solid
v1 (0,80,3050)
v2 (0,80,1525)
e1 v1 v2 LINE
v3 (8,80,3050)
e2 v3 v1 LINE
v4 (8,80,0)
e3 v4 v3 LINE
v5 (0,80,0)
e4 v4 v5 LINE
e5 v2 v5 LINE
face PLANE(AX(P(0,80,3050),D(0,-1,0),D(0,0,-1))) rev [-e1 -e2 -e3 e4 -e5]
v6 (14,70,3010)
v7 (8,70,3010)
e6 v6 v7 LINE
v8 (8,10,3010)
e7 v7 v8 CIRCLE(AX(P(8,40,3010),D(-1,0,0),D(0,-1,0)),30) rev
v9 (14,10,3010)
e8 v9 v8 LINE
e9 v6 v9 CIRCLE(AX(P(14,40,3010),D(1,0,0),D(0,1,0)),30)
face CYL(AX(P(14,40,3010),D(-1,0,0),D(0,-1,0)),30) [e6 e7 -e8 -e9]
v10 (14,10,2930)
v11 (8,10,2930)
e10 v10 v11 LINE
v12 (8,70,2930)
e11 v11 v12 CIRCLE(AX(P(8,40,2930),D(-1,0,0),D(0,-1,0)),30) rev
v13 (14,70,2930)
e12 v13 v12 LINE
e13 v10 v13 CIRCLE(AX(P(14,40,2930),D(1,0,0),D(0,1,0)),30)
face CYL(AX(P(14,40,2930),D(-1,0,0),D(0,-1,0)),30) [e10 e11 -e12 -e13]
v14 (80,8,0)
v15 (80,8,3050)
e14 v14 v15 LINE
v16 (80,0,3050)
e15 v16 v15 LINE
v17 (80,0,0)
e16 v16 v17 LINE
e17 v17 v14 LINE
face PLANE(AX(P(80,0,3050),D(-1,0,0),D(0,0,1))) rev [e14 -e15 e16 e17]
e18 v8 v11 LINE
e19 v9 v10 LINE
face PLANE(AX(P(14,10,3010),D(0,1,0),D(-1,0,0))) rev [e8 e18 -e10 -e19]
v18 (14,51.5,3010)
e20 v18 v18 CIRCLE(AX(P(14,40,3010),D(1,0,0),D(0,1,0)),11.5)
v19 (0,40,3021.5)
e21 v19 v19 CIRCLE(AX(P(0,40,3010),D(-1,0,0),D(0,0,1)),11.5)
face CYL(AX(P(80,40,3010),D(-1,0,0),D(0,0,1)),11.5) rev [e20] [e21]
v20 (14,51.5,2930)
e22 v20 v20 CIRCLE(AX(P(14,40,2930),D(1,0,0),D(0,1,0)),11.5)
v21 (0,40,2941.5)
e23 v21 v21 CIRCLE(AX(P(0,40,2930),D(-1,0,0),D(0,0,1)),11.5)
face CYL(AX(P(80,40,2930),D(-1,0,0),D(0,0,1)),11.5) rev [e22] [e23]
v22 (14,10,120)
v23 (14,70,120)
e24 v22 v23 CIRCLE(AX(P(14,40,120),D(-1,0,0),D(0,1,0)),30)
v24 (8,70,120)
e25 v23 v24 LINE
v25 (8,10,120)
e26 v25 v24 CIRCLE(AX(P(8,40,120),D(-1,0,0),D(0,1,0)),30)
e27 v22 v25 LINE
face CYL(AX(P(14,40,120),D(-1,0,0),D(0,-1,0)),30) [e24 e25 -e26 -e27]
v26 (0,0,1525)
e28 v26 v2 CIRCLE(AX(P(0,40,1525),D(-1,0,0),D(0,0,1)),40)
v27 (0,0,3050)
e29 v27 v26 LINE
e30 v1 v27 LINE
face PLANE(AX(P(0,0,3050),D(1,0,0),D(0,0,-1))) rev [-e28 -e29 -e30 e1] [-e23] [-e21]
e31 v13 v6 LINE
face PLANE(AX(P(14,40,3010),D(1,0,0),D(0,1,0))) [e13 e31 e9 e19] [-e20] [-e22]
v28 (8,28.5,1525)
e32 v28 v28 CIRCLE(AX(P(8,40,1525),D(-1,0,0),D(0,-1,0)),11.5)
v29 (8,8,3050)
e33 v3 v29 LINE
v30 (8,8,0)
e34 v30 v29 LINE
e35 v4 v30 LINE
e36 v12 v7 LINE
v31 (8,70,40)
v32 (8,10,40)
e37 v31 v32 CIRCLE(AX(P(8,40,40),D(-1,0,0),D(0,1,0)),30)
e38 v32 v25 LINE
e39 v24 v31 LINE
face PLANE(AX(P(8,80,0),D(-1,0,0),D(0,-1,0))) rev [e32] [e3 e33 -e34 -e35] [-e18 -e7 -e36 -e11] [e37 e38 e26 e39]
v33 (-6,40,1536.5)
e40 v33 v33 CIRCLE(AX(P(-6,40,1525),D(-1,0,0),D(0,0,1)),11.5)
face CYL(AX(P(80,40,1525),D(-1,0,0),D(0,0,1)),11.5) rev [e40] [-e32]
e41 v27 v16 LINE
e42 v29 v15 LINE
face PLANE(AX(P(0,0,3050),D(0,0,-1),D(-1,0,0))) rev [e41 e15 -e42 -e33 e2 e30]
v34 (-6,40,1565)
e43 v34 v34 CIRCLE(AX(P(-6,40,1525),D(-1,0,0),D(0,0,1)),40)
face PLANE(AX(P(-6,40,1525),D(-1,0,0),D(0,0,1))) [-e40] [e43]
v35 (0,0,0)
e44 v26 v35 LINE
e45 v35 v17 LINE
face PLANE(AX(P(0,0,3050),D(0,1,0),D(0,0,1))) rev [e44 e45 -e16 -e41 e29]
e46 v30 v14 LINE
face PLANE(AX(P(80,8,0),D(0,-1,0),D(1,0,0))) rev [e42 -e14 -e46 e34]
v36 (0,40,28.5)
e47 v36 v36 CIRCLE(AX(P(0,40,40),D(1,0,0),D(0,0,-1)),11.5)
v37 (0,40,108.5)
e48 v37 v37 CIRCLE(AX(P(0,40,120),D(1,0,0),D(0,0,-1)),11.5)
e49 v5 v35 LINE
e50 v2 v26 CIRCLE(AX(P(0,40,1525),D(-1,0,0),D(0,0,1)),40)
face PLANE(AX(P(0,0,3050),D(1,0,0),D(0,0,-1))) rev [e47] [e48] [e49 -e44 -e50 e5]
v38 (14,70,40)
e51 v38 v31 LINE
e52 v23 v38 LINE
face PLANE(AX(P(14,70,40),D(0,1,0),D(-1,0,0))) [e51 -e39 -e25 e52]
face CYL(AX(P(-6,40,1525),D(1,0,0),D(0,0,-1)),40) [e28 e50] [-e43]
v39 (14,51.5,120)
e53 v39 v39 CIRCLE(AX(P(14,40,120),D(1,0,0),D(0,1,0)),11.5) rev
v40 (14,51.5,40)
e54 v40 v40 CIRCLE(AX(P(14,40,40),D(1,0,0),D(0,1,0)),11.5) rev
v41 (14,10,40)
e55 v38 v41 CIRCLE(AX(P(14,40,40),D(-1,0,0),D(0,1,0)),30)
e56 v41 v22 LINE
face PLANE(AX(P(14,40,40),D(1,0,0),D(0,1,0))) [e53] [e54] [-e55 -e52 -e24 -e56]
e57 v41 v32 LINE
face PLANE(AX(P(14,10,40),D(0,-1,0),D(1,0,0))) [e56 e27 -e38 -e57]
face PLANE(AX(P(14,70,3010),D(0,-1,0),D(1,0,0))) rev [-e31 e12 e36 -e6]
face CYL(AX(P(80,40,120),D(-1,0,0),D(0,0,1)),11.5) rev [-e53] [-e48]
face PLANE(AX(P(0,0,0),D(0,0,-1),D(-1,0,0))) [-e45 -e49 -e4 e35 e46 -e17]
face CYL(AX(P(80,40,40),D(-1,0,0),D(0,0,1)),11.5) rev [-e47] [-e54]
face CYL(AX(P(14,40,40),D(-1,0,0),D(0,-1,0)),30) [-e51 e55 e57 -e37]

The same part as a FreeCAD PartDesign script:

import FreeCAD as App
import Part
import Sketcher
Q = App.Units.Quantity

doc = App.newDocument("Part")
body = doc.addObject("PartDesign::Body", "Body")

# Sketch on XY plane
sketch1 = body.newObject("Sketcher::SketchObject", "Sketch")
sketch1.AttachmentSupport = (doc.getObject("XY_Plane"), [""])
sketch1.MapMode = "FlatFace"
sketch1.addGeometry([
    Part.LineSegment(App.Vector(0, 80, 0), App.Vector(0, 0, 0)),
    Part.LineSegment(App.Vector(0, 0, 0), App.Vector(80, 0, 0)),
    Part.LineSegment(App.Vector(80, 0, 0), App.Vector(80, 80, 0)),
    Part.LineSegment(App.Vector(80, 80, 0), App.Vector(0, 80, 0)),
], False)
sketch1.addConstraint([
    Sketcher.Constraint("Coincident", 0, 2, 1, 1),
    Sketcher.Constraint("Coincident", 1, 2, 2, 1),
    Sketcher.Constraint("Coincident", 2, 2, 3, 1),
    Sketcher.Constraint("Coincident", 3, 2, 0, 1),
    Sketcher.Constraint("Vertical", 0),
    Sketcher.Constraint("Horizontal", 1),
    Sketcher.Constraint("Vertical", 2),
    Sketcher.Constraint("Horizontal", 3),
    Sketcher.Constraint("Coincident", 0, 2, -1, 1),
    Sketcher.Constraint("Equal", 3, 0),
    Sketcher.Constraint("DistanceX", 1, 1, 1, 2, Q("80 mm")),
])
pad1 = body.newObject("PartDesign::Pad", "Pad")
pad1.Profile = sketch1
pad1.Length = 3050

# Sketch on XY plane
sketch2 = body.newObject("Sketcher::SketchObject", "Sketch001")
sketch2.AttachmentSupport = (doc.getObject("XY_Plane"), [""])
sketch2.MapMode = "FlatFace"
sketch2.AttachmentOffset = App.Placement(App.Vector(0, 0, 3050), App.Rotation())
sketch2.addGeometry([
    Part.LineSegment(App.Vector(8, 80, 0), App.Vector(8, 8, 0)),
    Part.LineSegment(App.Vector(8, 8, 0), App.Vector(80, 8, 0)),
    Part.LineSegment(App.Vector(80, 8, 0), App.Vector(80, 80, 0)),
    Part.LineSegment(App.Vector(80, 80, 0), App.Vector(8, 80, 0)),
], False)
sketch2.addConstraint([
    Sketcher.Constraint("Coincident", 0, 2, 1, 1),
    Sketcher.Constraint("Coincident", 1, 2, 2, 1),
    Sketcher.Constraint("Coincident", 2, 2, 3, 1),
    Sketcher.Constraint("Coincident", 3, 2, 0, 1),
    Sketcher.Constraint("Vertical", 0),
    Sketcher.Constraint("Horizontal", 1),
    Sketcher.Constraint("Vertical", 2),
    Sketcher.Constraint("Horizontal", 3),
    Sketcher.Constraint("Equal", 3, 0),
    Sketcher.Constraint("DistanceX", 1, 1, 1, 2, Q("72 mm")),
    Sketcher.Constraint("DistanceX", -1, 1, 0, 2, Q("8 mm")),
    Sketcher.Constraint("DistanceY", -1, 1, 0, 2, Q("8 mm")),
])
pocket1 = body.newObject("PartDesign::Pocket", "Pocket")
pocket1.Profile = sketch2
pocket1.Type = "ThroughAll"

# Sketch on YZ plane
sketch3 = body.newObject("Sketcher::SketchObject", "Sketch002")
sketch3.AttachmentSupport = (doc.getObject("YZ_Plane"), [""])
sketch3.MapMode = "FlatFace"
sketch3.addGeometry(Part.Circle(App.Vector(40, 1525, 0), App.Vector(0, 0, 1), 40), False)
sketch3.addConstraint([
    Sketcher.Constraint("Diameter", 0, Q("80 mm")),
    Sketcher.Constraint("DistanceX", -1, 1, 0, 3, Q("40 mm")),
    Sketcher.Constraint("DistanceY", -1, 1, 0, 3, Q("1525 mm")),
])
pad2 = body.newObject("PartDesign::Pad", "Pad001")
pad2.Profile = sketch3
pad2.Length = 6
pad2.Reversed = True

# Sketch on YZ plane
sketch4 = body.newObject("Sketcher::SketchObject", "Sketch003")
sketch4.AttachmentSupport = (doc.getObject("YZ_Plane"), [""])
sketch4.MapMode = "FlatFace"
sketch4.AttachmentOffset = App.Placement(App.Vector(0, 0, -6), App.Rotation())
sketch4.addGeometry(Part.Circle(App.Vector(40, 1525, 0), App.Vector(0, 0, 1), 12), False)
sketch4.addConstraint([
    Sketcher.Constraint("Diameter", 0, Q("23 mm")),
    Sketcher.Constraint("DistanceX", -1, 1, 0, 3, Q("40 mm")),
    Sketcher.Constraint("DistanceY", -1, 1, 0, 3, Q("1525 mm")),
])
pocket2 = body.newObject("PartDesign::Pocket", "Pocket001")
pocket2.Profile = sketch4
pocket2.Type = "ThroughAll"
pocket2.Reversed = True

# Sketch on YZ plane
sketch5 = body.newObject("Sketcher::SketchObject", "Sketch004")
sketch5.AttachmentSupport = (doc.getObject("YZ_Plane"), [""])
sketch5.MapMode = "FlatFace"
sketch5.AttachmentOffset = App.Placement(App.Vector(0, 0, 8), App.Rotation())
sketch5.addGeometry([
    Part.Circle(App.Vector(40, 3010, 0), App.Vector(0, 0, 1), 30),
    Part.Circle(App.Vector(40, 2930, 0), App.Vector(0, 0, 1), 30),
], False)
sketch5.addConstraint([
    Sketcher.Constraint("Equal", 0, 1),
    Sketcher.Constraint("Vertical", 0, 3, 1, 3),
    Sketcher.Constraint("Diameter", 0, Q("60 mm")),
    Sketcher.Constraint("DistanceX", -1, 1, 0, 3, Q("40 mm")),
    Sketcher.Constraint("DistanceY", -1, 1, 0, 3, Q("3010 mm")),
    Sketcher.Constraint("DistanceY", -1, 1, 1, 3, Q("2930 mm")),
])
pad3 = body.newObject("PartDesign::Pad", "Pad002")
pad3.Profile = sketch5
pad3.Length = 6

# Sketch on YZ plane
sketch6 = body.newObject("Sketcher::SketchObject", "Sketch005")
sketch6.AttachmentSupport = (doc.getObject("YZ_Plane"), [""])
sketch6.MapMode = "FlatFace"
sketch6.AttachmentOffset = App.Placement(App.Vector(0, 0, 8), App.Rotation())
sketch6.addGeometry([
    Part.LineSegment(App.Vector(70, 3010, 0), App.Vector(10, 3010, 0)),
    Part.LineSegment(App.Vector(10, 3010, 0), App.Vector(10, 2930, 0)),
    Part.LineSegment(App.Vector(10, 2930, 0), App.Vector(70, 2930, 0)),
    Part.LineSegment(App.Vector(70, 2930, 0), App.Vector(70, 3010, 0)),
], False)
sketch6.addConstraint([
    Sketcher.Constraint("Coincident", 0, 2, 1, 1),
    Sketcher.Constraint("Coincident", 1, 2, 2, 1),
    Sketcher.Constraint("Coincident", 2, 2, 3, 1),
    Sketcher.Constraint("Coincident", 3, 2, 0, 1),
    Sketcher.Constraint("Horizontal", 0),
    Sketcher.Constraint("Vertical", 1),
    Sketcher.Constraint("Horizontal", 2),
    Sketcher.Constraint("Vertical", 3),
    Sketcher.Constraint("DistanceX", 0, 2, 0, 1, Q("60 mm")),
    Sketcher.Constraint("DistanceY", 1, 2, 1, 1, Q("80 mm")),
    Sketcher.Constraint("DistanceX", -1, 1, 0, 2, Q("10 mm")),
    Sketcher.Constraint("DistanceY", -1, 1, 0, 2, Q("3010 mm")),
])
pad4 = body.newObject("PartDesign::Pad", "Pad003")
pad4.Profile = sketch6
pad4.Length = 6

# Sketch on YZ plane
sketch7 = body.newObject("Sketcher::SketchObject", "Sketch006")
sketch7.AttachmentSupport = (doc.getObject("YZ_Plane"), [""])
sketch7.MapMode = "FlatFace"
sketch7.addGeometry([
    Part.Circle(App.Vector(40, 3010, 0), App.Vector(0, 0, 1), 12),
    Part.Circle(App.Vector(40, 2930, 0), App.Vector(0, 0, 1), 12),
], False)
sketch7.addConstraint([
    Sketcher.Constraint("Equal", 0, 1),
    Sketcher.Constraint("Vertical", 0, 3, 1, 3),
    Sketcher.Constraint("Diameter", 0, Q("23 mm")),
    Sketcher.Constraint("DistanceX", -1, 1, 0, 3, Q("40 mm")),
    Sketcher.Constraint("DistanceY", -1, 1, 0, 3, Q("3010 mm")),
    Sketcher.Constraint("DistanceY", -1, 1, 1, 3, Q("2930 mm")),
])
pocket3 = body.newObject("PartDesign::Pocket", "Pocket002")
pocket3.Profile = sketch7
pocket3.Type = "ThroughAll"
pocket3.Reversed = True
doc.recompute()

datumplane = body.newObject("PartDesign::Plane", "DatumPlane")
datumplane.AttachmentSupport = (doc.getObject("XY_Plane"), [""])
datumplane.MapMode = "FlatFace"
datumplane.AttachmentOffset = App.Placement(App.Vector(0, 0, 1525), App.Rotation())
mirrored = body.newObject("PartDesign::Mirrored", "Mirrored")
mirrored.Originals = [pad3, pad4, pocket3]
mirrored.MirrorPlane = (datumplane, [""])
body.Tip = mirrored

doc.recompute()
